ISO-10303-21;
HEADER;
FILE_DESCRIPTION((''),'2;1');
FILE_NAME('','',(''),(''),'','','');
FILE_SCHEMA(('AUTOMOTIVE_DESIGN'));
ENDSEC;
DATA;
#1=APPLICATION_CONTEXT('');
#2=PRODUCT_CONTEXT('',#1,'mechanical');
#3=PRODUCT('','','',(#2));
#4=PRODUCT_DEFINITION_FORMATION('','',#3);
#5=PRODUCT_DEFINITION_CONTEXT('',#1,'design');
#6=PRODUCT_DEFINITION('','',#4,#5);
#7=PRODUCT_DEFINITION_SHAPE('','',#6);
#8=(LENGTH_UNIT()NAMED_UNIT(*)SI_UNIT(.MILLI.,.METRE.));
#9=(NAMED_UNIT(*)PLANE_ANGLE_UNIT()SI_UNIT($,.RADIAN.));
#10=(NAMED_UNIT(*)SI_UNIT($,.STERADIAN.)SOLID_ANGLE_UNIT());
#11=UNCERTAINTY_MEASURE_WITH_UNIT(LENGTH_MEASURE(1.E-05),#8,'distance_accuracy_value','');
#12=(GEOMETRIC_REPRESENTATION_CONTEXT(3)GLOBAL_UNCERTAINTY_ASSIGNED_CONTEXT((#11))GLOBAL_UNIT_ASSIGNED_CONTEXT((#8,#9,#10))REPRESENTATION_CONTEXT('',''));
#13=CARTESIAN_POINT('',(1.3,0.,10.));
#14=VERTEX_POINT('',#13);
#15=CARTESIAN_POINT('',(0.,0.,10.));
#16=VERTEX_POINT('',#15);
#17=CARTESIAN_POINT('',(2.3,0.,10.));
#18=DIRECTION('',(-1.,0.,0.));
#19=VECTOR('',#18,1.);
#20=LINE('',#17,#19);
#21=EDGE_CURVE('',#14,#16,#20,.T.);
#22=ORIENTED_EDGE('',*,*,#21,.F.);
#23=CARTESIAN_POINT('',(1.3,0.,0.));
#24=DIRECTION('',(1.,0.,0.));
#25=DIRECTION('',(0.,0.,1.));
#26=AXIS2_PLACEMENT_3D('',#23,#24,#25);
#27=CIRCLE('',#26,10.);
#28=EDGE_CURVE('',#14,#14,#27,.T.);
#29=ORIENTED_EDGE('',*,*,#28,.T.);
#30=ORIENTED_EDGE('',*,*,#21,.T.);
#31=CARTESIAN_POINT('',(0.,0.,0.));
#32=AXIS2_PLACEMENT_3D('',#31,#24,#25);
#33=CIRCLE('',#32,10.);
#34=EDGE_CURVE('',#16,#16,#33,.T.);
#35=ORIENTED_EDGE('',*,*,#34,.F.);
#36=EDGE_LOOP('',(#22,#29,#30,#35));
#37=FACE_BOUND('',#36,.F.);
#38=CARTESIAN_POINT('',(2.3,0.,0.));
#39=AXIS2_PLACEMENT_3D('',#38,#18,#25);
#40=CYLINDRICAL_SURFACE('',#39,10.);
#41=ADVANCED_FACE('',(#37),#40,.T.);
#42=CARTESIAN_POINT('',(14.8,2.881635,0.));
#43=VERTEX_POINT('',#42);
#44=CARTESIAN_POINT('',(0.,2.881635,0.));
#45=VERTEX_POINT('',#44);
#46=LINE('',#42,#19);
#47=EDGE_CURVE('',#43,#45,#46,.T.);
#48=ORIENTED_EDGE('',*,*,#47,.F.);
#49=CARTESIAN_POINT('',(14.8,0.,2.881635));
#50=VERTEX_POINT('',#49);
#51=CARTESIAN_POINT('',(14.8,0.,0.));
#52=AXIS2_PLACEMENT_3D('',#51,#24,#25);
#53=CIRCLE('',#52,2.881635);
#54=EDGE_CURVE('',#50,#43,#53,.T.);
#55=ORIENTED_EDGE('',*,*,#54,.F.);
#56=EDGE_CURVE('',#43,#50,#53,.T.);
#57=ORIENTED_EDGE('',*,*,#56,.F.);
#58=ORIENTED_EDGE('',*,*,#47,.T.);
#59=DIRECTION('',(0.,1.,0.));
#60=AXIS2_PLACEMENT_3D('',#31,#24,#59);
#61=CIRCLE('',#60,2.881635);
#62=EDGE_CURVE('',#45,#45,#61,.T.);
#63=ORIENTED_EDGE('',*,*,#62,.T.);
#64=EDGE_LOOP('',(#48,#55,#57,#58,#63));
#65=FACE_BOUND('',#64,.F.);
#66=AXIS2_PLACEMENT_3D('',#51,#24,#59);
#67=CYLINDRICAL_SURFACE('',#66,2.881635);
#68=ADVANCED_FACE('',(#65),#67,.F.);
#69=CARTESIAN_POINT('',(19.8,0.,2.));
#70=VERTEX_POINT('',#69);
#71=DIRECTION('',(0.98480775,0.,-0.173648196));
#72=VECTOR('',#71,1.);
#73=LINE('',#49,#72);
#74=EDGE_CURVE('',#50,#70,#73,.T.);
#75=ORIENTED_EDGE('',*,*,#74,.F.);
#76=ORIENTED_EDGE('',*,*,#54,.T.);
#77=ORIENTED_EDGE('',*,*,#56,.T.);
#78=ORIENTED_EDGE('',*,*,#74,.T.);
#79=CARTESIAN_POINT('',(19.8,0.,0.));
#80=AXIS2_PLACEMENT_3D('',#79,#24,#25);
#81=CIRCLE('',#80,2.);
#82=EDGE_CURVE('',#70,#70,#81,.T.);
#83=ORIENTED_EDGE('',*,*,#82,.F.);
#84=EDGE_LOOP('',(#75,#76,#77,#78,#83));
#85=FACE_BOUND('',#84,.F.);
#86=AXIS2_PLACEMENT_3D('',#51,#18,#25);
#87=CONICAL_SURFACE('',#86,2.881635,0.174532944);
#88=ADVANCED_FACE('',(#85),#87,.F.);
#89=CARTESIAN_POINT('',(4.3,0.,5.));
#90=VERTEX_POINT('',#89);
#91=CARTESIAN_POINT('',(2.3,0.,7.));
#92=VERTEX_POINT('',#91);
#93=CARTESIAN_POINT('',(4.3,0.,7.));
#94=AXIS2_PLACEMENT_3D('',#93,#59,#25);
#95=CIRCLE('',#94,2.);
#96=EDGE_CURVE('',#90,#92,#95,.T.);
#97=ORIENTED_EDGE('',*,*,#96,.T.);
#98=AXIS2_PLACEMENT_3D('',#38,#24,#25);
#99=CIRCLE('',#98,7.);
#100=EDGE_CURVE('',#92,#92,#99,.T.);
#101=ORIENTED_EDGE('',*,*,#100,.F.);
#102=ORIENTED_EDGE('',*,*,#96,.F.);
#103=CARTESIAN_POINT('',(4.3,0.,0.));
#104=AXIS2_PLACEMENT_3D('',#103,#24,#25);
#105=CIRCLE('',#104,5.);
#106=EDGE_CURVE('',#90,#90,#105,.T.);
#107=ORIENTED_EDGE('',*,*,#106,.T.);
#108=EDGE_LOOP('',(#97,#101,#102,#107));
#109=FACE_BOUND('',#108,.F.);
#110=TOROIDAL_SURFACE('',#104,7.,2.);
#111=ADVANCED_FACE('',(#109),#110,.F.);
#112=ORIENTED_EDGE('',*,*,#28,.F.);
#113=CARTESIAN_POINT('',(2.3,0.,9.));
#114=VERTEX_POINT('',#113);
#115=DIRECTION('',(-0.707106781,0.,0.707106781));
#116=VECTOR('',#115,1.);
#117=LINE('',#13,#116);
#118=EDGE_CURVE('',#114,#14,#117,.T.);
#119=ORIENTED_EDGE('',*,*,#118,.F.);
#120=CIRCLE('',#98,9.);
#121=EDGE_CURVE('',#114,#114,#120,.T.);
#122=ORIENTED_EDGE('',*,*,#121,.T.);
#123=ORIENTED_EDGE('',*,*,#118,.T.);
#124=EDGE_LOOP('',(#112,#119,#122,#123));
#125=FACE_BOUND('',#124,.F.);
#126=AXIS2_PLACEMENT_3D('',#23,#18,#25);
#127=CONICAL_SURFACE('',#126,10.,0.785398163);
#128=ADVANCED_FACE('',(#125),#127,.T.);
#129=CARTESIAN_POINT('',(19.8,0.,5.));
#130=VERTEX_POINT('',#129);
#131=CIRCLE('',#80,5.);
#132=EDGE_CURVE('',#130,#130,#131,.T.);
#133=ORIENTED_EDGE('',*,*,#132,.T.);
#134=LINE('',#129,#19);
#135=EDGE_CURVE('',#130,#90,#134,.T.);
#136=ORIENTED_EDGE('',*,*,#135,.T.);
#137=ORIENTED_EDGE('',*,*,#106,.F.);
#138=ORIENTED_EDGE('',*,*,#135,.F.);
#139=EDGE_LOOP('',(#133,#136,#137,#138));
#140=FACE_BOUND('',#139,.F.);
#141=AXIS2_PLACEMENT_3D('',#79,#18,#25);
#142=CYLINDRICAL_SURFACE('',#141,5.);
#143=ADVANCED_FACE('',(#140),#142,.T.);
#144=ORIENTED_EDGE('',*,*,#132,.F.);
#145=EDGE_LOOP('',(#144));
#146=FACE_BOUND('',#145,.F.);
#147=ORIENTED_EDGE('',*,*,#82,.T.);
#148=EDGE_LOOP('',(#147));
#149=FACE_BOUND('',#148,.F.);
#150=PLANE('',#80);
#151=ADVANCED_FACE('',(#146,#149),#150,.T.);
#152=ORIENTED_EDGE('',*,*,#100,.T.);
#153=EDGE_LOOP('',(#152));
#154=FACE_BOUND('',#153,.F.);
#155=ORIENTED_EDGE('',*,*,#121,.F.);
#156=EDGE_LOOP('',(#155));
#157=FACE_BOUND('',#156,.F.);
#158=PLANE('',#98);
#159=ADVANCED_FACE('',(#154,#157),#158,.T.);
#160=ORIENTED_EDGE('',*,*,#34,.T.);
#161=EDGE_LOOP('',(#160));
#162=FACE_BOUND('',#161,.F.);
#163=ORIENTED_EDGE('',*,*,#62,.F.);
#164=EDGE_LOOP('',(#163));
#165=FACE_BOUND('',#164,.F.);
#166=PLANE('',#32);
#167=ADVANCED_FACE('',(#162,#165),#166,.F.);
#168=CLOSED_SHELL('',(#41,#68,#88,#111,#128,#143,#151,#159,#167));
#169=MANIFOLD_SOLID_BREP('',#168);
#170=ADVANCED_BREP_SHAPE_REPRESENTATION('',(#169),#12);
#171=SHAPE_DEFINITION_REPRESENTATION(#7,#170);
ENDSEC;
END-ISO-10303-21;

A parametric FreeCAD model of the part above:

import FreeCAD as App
import Part
import Sketcher

V = App.Vector
Q = App.Units.Quantity


def edges_at(feature, points):
    """Names of the edges that pass closest to the given points."""
    edges = feature.Shape.Edges
    near = lambda p: min(range(len(edges)), key=lambda i: edges[i].distToShape(Part.Vertex(*p))[0])
    return sorted({f"Edge{near(p) + 1}" for p in points})

doc = App.newDocument("Part")
body = doc.addObject("PartDesign::Body", "Body")

sketch1 = body.newObject("Sketcher::SketchObject", "Sketch")
sketch1.AttachmentSupport = (doc.getObject("XZ_Plane"), [""])
sketch1.MapMode = "FlatFace"
sketch1.addGeometry(Part.LineSegment(V(0, 10, 0), V(0, 0, 0)), False)
sketch1.addGeometry(Part.LineSegment(V(0, 0, 0), V(14.8, 0, 0)), False)
sketch1.addGeometry(Part.LineSegment(V(14.8, 0, 0), V(14.8, 2.9, 0)), False)
sketch1.addGeometry(Part.LineSegment(V(14.8, 2.9, 0), V(19.8, 2, 0)), False)
sketch1.addGeometry(Part.LineSegment(V(19.8, 2, 0), V(19.8, 5, 0)), False)
sketch1.addGeometry(Part.LineSegment(V(19.8, 5, 0), V(2.3, 5, 0)), False)
sketch1.addGeometry(Part.LineSegment(V(2.3, 5, 0), V(2.3, 10, 0)), False)
sketch1.addGeometry(Part.LineSegment(V(2.3, 10, 0), V(0, 10, 0)), False)
sketch1.addConstraint(Sketcher.Constraint("Coincident", 0, 2, 1, 1))
sketch1.addConstraint(Sketcher.Constraint("Coincident", 1, 2, 2, 1))
sketch1.addConstraint(Sketcher.Constraint("Coincident", 2, 2, 3, 1))
sketch1.addConstraint(Sketcher.Constraint("Coincident", 3, 2, 4, 1))
sketch1.addConstraint(Sketcher.Constraint("Coincident", 4, 2, 5, 1))
sketch1.addConstraint(Sketcher.Constraint("Coincident", 5, 2, 6, 1))
sketch1.addConstraint(Sketcher.Constraint("Coincident", 6, 2, 7, 1))
sketch1.addConstraint(Sketcher.Constraint("Coincident", 7, 2, 0, 1))
sketch1.addConstraint(Sketcher.Constraint("Vertical", 0))
sketch1.addConstraint(Sketcher.Constraint("Horizontal", 1))
sketch1.addConstraint(Sketcher.Constraint("Vertical", 2))
sketch1.addConstraint(Sketcher.Constraint("Vertical", 4))
sketch1.addConstraint(Sketcher.Constraint("Horizontal", 5))
sketch1.addConstraint(Sketcher.Constraint("Vertical", 6))
sketch1.addConstraint(Sketcher.Constraint("Horizontal", 7))
sketch1.addConstraint(Sketcher.Constraint("Coincident", 0, 2, -1, 1))
sketch1.addConstraint(Sketcher.Constraint("DistanceY", 0, 2, 0, 1, 10.0))
sketch1.addConstraint(Sketcher.Constraint("DistanceY", 4, 1, 4, 2, 3.0))
sketch1.addConstraint(Sketcher.Constraint("DistanceY", 6, 1, 6, 2, 5.0))
sketch1.addConstraint(Sketcher.Constraint("Angle", 3, Q("-10.000001 deg")))
sketch1.addConstraint(Sketcher.Constraint("DistanceX", 1, 1, 1, 2, 14.8))
sketch1.addConstraint(Sketcher.Constraint("DistanceX", 5, 2, 5, 1, 17.5))
sketch1.addConstraint(Sketcher.Constraint("DistanceX", 7, 2, 7, 1, 2.3))
revolution = body.newObject("PartDesign::Revolution", "Revolution")
revolution.Profile = sketch1
revolution.ReferenceAxis = (sketch1, ["H_Axis"])
revolution.Angle = 360
doc.recompute()

fillet = body.newObject("PartDesign::Fillet", "Fillet")
fillet.Base = (revolution, edges_at(revolution, [(2.3, 0, -5)]))
fillet.Radius = 2
doc.recompute()

chamfer = body.newObject("PartDesign::Chamfer", "Chamfer")
chamfer.Base = (fillet, edges_at(fillet, [(2.3, 0, -10)]))
chamfer.Size = 1

sketch2 = body.newObject("Sketcher::SketchObject", "Sketch001")
sketch2.AttachmentSupport = (doc.getObject("YZ_Plane"), [""])
sketch2.MapMode = "FlatFace"
sketch2.AttachmentOffset = App.Placement(V(0, 0, 14.8), App.Rotation())
sketch2.addGeometry(Part.Circle(V(0, 0, 0), V(0, 0, 1), 2.9), False)
sketch2.addConstraint(Sketcher.Constraint("Coincident", 0, 3, -1, 1))
sketch2.addConstraint(Sketcher.Constraint("Diameter", 0, 5.76327))
pocket1 = body.newObject("PartDesign::Pocket", "Pocket")
pocket1.Profile = sketch2
pocket1.Length = 25

doc.recompute()
